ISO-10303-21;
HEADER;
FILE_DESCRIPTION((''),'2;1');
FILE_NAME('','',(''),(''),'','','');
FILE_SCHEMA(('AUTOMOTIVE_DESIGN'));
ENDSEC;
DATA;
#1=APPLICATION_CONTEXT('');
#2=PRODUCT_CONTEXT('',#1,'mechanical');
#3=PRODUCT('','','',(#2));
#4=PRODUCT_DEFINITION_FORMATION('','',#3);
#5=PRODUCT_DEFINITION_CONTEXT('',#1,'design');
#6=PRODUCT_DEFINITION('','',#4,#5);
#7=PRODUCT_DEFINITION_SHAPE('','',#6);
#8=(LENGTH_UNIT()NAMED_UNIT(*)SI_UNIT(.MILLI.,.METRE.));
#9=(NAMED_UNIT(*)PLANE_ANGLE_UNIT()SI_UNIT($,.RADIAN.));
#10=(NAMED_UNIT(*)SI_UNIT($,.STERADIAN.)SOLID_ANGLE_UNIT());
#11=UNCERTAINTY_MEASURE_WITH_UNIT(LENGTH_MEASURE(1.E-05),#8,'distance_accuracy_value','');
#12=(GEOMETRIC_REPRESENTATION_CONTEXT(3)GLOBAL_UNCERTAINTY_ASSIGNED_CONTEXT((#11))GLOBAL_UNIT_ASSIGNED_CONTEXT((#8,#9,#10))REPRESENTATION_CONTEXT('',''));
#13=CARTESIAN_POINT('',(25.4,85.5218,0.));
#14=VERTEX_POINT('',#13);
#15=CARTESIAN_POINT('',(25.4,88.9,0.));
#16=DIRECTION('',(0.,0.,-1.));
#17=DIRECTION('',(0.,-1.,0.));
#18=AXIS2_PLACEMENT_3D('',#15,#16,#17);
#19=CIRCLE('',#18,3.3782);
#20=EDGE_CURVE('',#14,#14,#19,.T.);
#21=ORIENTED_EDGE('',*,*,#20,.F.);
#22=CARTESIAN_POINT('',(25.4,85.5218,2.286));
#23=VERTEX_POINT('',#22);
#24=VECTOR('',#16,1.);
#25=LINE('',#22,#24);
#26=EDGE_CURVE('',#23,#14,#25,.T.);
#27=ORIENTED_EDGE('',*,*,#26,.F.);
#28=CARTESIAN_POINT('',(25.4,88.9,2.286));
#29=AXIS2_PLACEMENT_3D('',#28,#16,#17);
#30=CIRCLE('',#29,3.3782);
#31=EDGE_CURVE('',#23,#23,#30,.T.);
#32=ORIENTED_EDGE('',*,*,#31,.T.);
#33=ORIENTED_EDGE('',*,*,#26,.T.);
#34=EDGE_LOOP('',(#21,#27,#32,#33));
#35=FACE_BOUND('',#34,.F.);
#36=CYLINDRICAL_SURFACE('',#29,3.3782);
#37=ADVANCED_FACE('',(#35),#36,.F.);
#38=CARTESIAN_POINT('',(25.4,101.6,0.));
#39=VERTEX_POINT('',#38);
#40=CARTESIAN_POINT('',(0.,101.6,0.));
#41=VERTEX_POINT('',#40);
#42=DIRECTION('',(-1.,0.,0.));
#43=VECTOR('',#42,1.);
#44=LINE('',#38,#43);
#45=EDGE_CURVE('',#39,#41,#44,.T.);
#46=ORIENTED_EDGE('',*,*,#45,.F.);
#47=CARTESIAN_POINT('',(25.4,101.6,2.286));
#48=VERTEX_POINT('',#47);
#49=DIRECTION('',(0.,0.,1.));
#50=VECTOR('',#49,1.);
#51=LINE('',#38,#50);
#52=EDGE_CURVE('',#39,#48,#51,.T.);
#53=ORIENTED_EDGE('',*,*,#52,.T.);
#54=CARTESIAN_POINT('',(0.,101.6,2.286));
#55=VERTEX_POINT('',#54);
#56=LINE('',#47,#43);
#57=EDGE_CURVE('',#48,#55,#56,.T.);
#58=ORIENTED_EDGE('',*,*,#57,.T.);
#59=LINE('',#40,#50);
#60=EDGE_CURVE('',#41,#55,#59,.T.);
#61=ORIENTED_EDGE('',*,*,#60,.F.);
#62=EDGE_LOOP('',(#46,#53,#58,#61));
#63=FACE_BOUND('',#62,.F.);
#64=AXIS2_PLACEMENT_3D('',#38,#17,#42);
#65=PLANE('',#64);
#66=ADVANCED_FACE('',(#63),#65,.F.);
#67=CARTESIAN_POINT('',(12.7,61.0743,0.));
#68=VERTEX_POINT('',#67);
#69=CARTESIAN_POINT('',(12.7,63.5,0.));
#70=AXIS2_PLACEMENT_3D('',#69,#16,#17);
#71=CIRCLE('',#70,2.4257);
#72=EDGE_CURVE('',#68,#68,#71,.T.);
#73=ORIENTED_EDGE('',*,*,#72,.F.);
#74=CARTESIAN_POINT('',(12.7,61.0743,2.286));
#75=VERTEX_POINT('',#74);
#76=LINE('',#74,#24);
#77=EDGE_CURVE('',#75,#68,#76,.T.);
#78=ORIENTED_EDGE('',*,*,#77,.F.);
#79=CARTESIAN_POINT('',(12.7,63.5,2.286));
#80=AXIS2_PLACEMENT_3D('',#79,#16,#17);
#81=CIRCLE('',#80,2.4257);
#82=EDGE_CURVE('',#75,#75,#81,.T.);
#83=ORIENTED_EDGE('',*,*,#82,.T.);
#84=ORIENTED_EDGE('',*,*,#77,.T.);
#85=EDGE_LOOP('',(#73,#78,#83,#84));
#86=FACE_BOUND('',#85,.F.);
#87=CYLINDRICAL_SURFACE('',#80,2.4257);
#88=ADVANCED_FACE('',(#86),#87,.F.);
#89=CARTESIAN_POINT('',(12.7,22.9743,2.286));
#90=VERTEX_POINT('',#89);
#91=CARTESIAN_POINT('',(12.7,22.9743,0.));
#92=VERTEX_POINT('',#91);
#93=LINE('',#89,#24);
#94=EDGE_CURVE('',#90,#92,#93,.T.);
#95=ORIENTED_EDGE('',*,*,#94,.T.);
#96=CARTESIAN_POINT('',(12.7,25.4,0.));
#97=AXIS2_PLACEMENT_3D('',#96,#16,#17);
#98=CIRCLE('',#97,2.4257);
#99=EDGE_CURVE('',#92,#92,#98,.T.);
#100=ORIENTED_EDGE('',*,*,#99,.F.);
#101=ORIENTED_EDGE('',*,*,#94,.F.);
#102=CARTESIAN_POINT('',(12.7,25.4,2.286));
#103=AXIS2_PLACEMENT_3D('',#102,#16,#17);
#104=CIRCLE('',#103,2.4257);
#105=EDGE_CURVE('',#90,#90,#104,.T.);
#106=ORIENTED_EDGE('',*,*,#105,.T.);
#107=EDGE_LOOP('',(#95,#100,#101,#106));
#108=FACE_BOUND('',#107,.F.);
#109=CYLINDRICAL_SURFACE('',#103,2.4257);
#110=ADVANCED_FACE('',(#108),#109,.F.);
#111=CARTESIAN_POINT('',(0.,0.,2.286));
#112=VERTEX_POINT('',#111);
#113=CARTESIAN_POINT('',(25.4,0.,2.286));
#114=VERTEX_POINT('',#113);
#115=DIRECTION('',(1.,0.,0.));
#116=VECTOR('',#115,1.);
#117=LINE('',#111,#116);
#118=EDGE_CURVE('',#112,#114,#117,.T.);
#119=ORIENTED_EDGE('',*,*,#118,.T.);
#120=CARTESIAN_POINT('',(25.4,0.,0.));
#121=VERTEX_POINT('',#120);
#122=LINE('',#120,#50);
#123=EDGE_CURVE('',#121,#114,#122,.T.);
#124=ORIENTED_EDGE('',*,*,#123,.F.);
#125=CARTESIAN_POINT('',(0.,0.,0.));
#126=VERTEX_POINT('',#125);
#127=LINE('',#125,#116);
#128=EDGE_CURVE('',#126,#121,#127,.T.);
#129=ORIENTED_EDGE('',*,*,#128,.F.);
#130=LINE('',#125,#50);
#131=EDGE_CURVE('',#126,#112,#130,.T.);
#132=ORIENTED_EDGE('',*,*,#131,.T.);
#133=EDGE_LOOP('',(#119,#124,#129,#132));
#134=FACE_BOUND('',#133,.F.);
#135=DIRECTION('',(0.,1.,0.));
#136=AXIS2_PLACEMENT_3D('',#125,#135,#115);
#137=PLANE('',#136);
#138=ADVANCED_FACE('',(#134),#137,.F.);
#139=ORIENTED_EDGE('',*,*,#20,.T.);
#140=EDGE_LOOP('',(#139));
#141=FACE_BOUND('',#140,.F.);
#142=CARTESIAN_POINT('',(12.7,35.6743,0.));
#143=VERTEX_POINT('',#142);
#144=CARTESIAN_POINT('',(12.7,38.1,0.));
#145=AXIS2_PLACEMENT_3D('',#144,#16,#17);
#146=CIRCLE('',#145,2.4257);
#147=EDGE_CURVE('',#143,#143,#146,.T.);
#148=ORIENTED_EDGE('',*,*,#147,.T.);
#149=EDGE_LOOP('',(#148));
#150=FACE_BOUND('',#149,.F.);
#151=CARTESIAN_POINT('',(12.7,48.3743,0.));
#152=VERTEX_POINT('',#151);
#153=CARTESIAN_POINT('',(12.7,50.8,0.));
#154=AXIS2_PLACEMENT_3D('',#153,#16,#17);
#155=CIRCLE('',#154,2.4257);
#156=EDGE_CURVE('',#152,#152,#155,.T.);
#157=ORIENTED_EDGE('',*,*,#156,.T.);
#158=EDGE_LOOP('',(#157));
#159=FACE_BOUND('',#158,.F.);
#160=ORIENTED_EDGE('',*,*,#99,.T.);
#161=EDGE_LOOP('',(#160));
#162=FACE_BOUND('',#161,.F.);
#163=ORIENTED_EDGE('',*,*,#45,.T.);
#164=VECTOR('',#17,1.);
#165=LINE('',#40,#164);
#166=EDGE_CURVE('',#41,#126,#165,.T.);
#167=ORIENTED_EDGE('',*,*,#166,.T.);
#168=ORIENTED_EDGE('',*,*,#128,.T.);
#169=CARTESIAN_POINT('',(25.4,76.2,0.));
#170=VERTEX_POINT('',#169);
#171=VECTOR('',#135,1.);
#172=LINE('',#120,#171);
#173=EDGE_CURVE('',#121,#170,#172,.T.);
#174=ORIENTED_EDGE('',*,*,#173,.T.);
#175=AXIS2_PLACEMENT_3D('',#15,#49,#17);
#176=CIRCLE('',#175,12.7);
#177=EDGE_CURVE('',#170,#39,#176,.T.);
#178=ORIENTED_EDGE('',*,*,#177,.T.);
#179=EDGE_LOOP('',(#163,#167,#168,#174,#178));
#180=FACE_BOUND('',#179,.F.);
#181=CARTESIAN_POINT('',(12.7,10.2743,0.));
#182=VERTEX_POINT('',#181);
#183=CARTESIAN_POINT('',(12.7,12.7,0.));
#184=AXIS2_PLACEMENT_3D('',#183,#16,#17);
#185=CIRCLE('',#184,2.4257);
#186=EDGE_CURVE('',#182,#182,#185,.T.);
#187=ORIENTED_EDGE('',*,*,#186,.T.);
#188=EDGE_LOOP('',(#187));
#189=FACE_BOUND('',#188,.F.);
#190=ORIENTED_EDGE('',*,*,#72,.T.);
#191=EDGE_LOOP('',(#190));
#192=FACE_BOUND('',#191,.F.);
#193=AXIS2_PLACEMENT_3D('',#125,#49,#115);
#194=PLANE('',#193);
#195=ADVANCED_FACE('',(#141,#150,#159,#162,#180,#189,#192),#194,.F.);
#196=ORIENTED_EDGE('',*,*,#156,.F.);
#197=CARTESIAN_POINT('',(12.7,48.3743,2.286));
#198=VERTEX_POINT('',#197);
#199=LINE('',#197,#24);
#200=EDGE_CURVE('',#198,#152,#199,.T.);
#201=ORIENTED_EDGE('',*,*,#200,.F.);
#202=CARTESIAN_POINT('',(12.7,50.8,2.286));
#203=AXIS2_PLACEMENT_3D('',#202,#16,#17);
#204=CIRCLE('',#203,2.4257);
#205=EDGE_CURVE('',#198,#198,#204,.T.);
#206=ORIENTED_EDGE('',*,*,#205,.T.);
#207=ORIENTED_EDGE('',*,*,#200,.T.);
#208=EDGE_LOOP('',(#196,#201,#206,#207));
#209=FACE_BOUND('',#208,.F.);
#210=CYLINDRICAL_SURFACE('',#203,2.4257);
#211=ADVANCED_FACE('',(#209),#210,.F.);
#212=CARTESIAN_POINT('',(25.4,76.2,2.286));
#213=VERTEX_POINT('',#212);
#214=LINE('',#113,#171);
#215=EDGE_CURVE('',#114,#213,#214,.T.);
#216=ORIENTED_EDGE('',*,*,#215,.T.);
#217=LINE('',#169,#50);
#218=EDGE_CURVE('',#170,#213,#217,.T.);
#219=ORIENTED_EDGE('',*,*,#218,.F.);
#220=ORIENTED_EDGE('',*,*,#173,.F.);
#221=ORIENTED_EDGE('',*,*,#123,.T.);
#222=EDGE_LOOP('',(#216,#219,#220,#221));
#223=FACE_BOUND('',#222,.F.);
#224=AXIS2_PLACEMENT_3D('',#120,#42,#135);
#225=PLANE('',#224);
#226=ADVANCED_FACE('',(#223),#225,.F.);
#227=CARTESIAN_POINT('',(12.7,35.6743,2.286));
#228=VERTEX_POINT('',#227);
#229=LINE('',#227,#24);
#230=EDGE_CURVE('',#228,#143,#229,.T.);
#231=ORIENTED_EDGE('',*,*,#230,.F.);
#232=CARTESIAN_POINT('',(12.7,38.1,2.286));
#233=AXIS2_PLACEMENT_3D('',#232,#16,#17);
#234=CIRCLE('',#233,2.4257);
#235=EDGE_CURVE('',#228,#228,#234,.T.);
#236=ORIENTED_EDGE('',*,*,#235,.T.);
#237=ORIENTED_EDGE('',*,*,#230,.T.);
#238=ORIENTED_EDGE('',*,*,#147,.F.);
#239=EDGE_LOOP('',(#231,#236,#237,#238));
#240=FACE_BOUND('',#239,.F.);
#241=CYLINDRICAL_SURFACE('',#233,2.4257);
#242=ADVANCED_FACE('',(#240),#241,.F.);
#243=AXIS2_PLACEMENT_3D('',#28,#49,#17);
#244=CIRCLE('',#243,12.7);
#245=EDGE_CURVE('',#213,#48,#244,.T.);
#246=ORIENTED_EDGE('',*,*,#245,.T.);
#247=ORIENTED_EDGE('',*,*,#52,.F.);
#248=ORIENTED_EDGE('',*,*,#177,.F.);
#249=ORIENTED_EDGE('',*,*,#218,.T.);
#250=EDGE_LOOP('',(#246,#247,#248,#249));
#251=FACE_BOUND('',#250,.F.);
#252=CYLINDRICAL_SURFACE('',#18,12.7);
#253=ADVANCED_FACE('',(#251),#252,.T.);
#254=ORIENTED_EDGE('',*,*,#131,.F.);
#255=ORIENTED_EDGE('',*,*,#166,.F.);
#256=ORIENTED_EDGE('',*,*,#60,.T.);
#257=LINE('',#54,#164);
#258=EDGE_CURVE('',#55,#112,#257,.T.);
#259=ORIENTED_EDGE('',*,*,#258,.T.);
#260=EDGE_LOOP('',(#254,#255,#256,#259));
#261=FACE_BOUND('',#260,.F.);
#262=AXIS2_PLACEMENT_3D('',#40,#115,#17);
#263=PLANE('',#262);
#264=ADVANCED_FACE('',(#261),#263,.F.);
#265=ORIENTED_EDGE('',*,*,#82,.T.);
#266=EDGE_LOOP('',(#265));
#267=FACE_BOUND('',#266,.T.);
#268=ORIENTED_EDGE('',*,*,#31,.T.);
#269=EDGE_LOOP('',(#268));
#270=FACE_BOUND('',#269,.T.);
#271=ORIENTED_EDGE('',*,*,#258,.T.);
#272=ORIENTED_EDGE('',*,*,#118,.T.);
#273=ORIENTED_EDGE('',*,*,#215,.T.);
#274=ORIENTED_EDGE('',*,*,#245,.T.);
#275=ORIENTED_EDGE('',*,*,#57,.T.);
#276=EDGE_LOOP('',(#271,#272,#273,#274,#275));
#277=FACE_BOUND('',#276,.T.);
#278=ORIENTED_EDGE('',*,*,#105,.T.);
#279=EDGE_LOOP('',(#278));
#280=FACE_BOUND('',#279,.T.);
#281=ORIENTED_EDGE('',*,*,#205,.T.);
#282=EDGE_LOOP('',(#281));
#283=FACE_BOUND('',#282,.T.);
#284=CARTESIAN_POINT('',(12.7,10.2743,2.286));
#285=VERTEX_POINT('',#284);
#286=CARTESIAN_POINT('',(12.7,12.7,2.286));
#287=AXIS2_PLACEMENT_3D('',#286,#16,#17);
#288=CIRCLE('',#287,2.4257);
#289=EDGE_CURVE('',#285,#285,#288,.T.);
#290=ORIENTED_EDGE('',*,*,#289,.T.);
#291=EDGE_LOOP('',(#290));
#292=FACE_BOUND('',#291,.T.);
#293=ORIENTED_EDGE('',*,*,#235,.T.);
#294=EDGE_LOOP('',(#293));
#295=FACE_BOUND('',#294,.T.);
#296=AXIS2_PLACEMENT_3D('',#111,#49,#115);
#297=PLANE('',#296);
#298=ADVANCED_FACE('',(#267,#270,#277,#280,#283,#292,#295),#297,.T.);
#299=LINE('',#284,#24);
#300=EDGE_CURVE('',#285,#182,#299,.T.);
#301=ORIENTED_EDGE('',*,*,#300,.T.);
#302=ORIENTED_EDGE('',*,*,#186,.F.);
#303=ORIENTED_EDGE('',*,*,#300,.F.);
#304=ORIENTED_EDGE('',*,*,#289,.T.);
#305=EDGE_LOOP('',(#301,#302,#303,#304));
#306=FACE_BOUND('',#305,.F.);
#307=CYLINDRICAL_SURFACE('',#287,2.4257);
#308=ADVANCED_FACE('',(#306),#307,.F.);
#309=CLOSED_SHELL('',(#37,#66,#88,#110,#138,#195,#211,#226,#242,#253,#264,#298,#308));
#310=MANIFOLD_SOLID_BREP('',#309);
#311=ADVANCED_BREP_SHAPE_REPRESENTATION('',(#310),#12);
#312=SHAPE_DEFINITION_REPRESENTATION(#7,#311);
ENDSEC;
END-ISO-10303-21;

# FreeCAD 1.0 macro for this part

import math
import FreeCAD as App
import Part
import Sketcher
Q = App.Units.Quantity

doc = App.newDocument("Part")
params = doc.addObject("Spreadsheet::Sheet", "Params")
for row, (alias, value) in enumerate([
    ("sketch1_radius", "0.5 in"),
    ("sketch1_width", "1 in"),
    ("sketch1_height", "4 in"),
    ("pad1_length", "0.09 in"),
    ("sketch2_diameter", "0.191 in"),
    ("hole_diameter", "0.191 in"),
    ("sketch3_diameter", "0.266 in"),
    ("hole2_diameter", "0.266 in"),
], start=1):
    params.set(f"A{row}", alias)
    params.set(f"B{row}", "=" + value)
    params.setAlias(f"B{row}", alias)

body = doc.addObject("PartDesign::Body", "Body")

sketch1 = doc.addObject("Sketcher::SketchObject", "Sketch")
body.addObject(sketch1)
sketch1.AttachmentSupport = (doc.XY_Plane, [""])
sketch1.MapMode = "FlatFace"
sketch1.addGeometry([
    Part.LineSegment(App.Vector(0, 101.6, 0), App.Vector(0, 0, 0)),
    Part.LineSegment(App.Vector(0, 0, 0), App.Vector(25.4, 0, 0)),
    Part.LineSegment(App.Vector(25.4, 0, 0), App.Vector(25.4, 76.2, 0)),
    Part.ArcOfCircle(Part.Circle(App.Vector(25.4, 88.9, 0), App.Vector(0, 0, 1), 12.7), math.radians(-90), math.radians(90)),
    Part.LineSegment(App.Vector(25.4, 101.6, 0), App.Vector(0, 101.6, 0)),
], False)
sketch1.addConstraint([
    Sketcher.Constraint("Coincident", 0, 2, 1, 1),
    Sketcher.Constraint("Coincident", 1, 2, 2, 1),
    Sketcher.Constraint("Coincident", 2, 2, 3, 1),
    Sketcher.Constraint("Tangent", 3, 2, 4, 1),
    Sketcher.Constraint("Coincident", 4, 2, 0, 1),
    Sketcher.Constraint("Vertical", 0),
    Sketcher.Constraint("Horizontal", 1),
    Sketcher.Constraint("Vertical", 2),
    Sketcher.Constraint("Horizontal", 4),
    Sketcher.Constraint("Coincident", 0, 2, -1, 1),
    Sketcher.Constraint("Vertical", 3, 3, 1, 2),
    Sketcher.Constraint("Radius", 3, Q("0.5 in")),
    Sketcher.Constraint("DistanceX", 1, 1, 1, 2, Q("1 in")),
    Sketcher.Constraint("DistanceY", 0, 2, 0, 1, Q("4 in")),
])
sketch1.setExpression("Constraints[11]", "Params.sketch1_radius")
sketch1.setExpression("Constraints[12]", "Params.sketch1_width")
sketch1.setExpression("Constraints[13]", "Params.sketch1_height")
pad1 = doc.addObject("PartDesign::Pad", "Pad")
body.addObject(pad1)
pad1.Profile = sketch1
pad1.setExpression("Length", "Params.pad1_length")

sketch2 = doc.addObject("Sketcher::SketchObject", "Sketch001")
body.addObject(sketch2)
sketch2.AttachmentSupport = (doc.XY_Plane, [""])
sketch2.MapMode = "FlatFace"
sketch2.AttachmentOffset = App.Placement(App.Vector(0, 0, 0.09 * 25.4), App.Rotation())
sketch2.addGeometry([
    Part.Circle(App.Vector(12.7, 63.5, 0), App.Vector(0, 0, 1), 2.4257),
    Part.Circle(App.Vector(12.7, 50.8, 0), App.Vector(0, 0, 1), 2.4257),
    Part.Circle(App.Vector(12.7, 38.1, 0), App.Vector(0, 0, 1), 2.4257),
    Part.Circle(App.Vector(12.7, 25.4, 0), App.Vector(0, 0, 1), 2.4257),
    Part.Circle(App.Vector(12.7, 12.7, 0), App.Vector(0, 0, 1), 2.4257),
], False)
sketch2.addConstraint([
    Sketcher.Constraint("Equal", 0, 1),
    Sketcher.Constraint("Equal", 1, 2),
    Sketcher.Constraint("Equal", 2, 3),
    Sketcher.Constraint("Equal", 3, 4),
    Sketcher.Constraint("Vertical", 0, 3, 1, 3),
    Sketcher.Constraint("Vertical", 1, 3, 2, 3),
    Sketcher.Constraint("Vertical", 2, 3, 3, 3),
    Sketcher.Constraint("Vertical", 3, 3, 4, 3),
    Sketcher.Constraint("Diameter", 0, Q("0.191 in")),
    Sketcher.Constraint("DistanceY", -1, 1, 1, 3, Q("2 in")),
    Sketcher.Constraint("DistanceY", -1, 1, 3, 3, Q("1 in")),
    Sketcher.Constraint("DistanceY", 2, 3, 0, 3, Q("1 in")),
    Sketcher.Constraint("DistanceY", 4, 3, 2, 3, Q("1 in")),
    Sketcher.Constraint("DistanceX", -1, 1, 0, 3, Q("0.5 in")),
    Sketcher.Constraint("DistanceY", -1, 1, 0, 3, Q("2.5 in")),
])
sketch2.setExpression("Constraints[8]", "Params.sketch2_diameter")
doc.recompute()
hole = doc.addObject("PartDesign::Hole", "Hole")
body.addObject(hole)
hole.Profile = sketch2
hole.ThreadType = "None"
hole.setExpression("Diameter", "Params.hole_diameter")
hole.DepthType = "ThroughAll"

sketch3 = doc.addObject("Sketcher::SketchObject", "Sketch002")
body.addObject(sketch3)
sketch3.AttachmentSupport = (doc.XY_Plane, [""])
sketch3.MapMode = "FlatFace"
sketch3.AttachmentOffset = App.Placement(App.Vector(0, 0, 0.09 * 25.4), App.Rotation())
sketch3.addGeometry(Part.Circle(App.Vector(25.4, 88.9, 0), App.Vector(0, 0, 1), 3.3782), False)
sketch3.addConstraint([
    Sketcher.Constraint("Diameter", 0, Q("0.266 in")),
    Sketcher.Constraint("DistanceX", -1, 1, 0, 3, Q("1 in")),
    Sketcher.Constraint("DistanceY", -1, 1, 0, 3, Q("3.5 in")),
])
sketch3.setExpression("Constraints[0]", "Params.sketch3_diameter")
doc.recompute()
hole2 = doc.addObject("PartDesign::Hole", "Hole001")
body.addObject(hole2)
hole2.Profile = sketch3
hole2.ThreadType = "None"
hole2.setExpression("Diameter", "Params.hole2_diameter")
hole2.DepthType = "ThroughAll"

doc.recompute()
